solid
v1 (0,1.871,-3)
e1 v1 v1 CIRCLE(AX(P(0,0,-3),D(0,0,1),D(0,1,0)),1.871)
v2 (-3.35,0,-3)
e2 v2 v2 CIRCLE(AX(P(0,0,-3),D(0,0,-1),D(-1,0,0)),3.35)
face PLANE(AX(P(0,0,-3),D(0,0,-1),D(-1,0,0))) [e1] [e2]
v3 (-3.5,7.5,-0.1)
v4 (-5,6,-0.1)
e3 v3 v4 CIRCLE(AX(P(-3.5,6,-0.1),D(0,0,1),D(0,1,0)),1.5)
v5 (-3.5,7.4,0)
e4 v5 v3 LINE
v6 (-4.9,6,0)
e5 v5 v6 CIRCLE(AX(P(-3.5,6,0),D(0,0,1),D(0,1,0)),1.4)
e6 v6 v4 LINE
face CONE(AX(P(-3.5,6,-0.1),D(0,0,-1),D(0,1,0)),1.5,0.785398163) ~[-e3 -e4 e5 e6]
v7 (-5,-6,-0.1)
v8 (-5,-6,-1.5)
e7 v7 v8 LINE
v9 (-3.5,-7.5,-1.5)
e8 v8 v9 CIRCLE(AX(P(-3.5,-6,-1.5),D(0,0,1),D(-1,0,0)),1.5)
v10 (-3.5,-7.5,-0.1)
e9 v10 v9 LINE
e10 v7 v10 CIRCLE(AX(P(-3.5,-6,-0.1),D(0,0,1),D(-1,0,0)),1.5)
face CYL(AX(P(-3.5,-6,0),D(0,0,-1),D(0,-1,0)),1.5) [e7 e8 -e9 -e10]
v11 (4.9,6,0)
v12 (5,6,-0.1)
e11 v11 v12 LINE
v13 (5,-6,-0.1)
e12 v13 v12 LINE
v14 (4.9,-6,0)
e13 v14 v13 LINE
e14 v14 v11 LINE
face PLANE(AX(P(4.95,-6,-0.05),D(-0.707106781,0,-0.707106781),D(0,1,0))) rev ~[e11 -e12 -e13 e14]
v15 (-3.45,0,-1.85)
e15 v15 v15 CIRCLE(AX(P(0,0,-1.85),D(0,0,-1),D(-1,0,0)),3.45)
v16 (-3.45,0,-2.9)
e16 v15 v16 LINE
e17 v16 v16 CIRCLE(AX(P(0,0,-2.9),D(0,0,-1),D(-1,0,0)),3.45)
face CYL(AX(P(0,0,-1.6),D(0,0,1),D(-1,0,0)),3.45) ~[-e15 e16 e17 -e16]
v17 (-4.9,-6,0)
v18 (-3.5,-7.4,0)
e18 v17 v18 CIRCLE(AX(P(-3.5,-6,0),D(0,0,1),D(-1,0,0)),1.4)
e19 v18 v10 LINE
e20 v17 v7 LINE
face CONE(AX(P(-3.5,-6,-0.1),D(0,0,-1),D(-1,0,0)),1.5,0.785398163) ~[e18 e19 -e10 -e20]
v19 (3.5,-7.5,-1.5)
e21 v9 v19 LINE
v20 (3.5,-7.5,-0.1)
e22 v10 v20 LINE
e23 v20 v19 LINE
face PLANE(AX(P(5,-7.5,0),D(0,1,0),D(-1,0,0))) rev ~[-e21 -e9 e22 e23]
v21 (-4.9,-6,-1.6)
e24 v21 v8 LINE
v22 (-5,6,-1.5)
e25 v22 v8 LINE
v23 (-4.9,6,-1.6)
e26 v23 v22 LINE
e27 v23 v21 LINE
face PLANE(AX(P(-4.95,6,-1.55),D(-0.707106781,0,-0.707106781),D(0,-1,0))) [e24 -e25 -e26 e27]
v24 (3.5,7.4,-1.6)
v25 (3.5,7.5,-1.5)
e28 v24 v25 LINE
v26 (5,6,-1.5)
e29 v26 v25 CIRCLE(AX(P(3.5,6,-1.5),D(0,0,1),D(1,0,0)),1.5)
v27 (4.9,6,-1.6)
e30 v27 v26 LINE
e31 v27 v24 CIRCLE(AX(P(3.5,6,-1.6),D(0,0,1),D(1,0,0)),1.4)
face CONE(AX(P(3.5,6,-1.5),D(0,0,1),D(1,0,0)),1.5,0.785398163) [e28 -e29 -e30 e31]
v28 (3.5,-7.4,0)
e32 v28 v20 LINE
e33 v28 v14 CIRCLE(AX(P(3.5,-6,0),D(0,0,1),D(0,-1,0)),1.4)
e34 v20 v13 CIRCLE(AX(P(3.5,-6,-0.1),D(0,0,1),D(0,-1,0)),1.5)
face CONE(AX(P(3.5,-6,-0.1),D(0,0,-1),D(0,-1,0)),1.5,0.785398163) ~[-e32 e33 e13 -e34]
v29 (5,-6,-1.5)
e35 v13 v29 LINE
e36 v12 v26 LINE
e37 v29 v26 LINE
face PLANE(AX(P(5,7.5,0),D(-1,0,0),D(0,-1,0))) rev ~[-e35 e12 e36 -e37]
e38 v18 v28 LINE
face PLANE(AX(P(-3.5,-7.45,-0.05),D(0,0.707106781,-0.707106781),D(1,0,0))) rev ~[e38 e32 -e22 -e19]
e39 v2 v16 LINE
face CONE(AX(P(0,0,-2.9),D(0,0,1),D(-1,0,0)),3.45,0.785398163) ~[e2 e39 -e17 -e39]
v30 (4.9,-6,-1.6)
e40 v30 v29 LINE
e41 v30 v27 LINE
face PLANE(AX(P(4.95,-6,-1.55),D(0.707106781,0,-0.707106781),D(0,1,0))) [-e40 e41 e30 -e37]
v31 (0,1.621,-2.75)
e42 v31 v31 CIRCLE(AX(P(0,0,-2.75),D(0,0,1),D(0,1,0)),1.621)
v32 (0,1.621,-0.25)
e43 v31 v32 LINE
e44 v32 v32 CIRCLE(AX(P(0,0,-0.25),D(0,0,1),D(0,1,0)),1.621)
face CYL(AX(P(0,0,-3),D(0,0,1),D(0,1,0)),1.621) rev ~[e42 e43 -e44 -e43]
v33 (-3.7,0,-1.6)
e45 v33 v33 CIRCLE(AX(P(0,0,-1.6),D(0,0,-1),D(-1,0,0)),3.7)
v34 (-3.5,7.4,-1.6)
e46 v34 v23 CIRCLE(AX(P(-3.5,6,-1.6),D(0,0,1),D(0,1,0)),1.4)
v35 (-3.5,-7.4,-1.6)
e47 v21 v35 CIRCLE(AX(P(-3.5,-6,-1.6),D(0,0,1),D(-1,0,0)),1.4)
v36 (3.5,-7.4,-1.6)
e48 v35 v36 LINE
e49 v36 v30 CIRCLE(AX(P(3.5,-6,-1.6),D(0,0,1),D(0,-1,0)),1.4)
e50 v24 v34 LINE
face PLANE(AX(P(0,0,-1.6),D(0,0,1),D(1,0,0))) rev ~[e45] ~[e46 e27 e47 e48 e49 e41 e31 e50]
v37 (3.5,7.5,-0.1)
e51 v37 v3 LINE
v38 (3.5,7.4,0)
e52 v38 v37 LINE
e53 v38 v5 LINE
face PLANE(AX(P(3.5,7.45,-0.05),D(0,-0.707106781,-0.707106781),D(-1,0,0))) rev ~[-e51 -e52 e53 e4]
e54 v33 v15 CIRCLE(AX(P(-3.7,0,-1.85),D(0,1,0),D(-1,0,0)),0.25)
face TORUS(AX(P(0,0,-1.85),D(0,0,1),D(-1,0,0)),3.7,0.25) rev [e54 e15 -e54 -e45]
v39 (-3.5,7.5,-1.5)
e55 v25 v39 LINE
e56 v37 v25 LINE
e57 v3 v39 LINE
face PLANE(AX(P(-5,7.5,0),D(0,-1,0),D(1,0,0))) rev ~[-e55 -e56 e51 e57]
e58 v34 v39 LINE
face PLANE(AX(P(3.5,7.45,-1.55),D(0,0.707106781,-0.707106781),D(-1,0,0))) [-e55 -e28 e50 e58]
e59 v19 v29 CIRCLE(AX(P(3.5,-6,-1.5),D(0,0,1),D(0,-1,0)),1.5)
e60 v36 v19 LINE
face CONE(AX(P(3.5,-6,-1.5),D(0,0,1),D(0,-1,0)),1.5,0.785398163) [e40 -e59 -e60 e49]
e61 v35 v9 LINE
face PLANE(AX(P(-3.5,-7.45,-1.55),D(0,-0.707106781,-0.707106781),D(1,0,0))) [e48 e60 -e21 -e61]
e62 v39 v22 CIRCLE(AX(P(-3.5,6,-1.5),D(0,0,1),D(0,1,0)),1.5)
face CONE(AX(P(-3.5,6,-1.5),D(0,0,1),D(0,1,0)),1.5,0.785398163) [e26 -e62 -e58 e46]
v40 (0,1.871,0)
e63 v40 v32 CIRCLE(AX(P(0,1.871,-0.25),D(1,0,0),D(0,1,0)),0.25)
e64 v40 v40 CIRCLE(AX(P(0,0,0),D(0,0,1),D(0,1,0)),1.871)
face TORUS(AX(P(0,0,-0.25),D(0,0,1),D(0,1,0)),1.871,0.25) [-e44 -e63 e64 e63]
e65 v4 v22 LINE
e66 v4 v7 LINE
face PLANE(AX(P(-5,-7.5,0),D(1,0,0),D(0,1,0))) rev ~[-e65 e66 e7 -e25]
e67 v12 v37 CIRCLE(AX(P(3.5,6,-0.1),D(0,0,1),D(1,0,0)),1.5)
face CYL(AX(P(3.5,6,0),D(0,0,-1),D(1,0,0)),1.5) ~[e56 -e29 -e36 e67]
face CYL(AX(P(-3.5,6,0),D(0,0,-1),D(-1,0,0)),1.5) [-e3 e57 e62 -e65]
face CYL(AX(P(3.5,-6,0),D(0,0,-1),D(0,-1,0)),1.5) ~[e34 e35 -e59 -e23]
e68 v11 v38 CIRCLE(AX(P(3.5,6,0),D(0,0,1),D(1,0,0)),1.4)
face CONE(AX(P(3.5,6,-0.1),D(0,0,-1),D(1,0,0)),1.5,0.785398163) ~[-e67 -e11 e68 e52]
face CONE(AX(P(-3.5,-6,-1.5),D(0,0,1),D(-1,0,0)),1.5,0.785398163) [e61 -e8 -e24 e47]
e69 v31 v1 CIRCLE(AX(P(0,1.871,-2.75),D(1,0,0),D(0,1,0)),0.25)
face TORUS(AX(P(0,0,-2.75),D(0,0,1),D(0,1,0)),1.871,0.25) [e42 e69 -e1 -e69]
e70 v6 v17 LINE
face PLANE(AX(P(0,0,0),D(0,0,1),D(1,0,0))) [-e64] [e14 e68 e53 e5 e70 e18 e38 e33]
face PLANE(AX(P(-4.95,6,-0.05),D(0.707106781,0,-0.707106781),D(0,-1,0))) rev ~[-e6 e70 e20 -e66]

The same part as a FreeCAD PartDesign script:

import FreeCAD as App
import Part
import Sketcher

V = App.Vector


def edges_at(feature, points):
    """Names of the edges that pass closest to the given points."""
    edges = feature.Shape.Edges
    near = lambda p: min(range(len(edges)), key=lambda i: edges[i].distToShape(Part.Vertex(*p))[0])
    return sorted({f"Edge{near(p) + 1}" for p in points})

doc = App.newDocument("Part")
params = doc.addObject("Spreadsheet::Sheet", "Params")
for row, (alias, value) in enumerate([
    ("sketch1_width", "10 mm"),
    ("sketch1_height", "15 mm"),
    ("pad1_length", "1.6 mm"),
    ("sketch2_diameter", "6.9 mm"),
    ("pad2_length", "1.4 mm"),
    ("fillet_radius", "0.25 mm"),
    ("fillet2_radius", "1.5 mm"),
    ("hole_diameter", "3.242 mm"),
    ("fillet3_radius", "0.25 mm"),
    ("chamfer_size", "0.1 mm"),
    ("chamfer2_size", "0.1 mm"),
], start=1):
    params.set(f"A{row}", alias)
    params.set(f"B{row}", "=" + value)
    params.setAlias(f"B{row}", alias)

body = doc.addObject("PartDesign::Body", "Body")

sketch1 = body.newObject("Sketcher::SketchObject", "Sketch")
sketch1.AttachmentSupport = (doc.getObject("XY_Plane"), [""])
sketch1.MapMode = "FlatFace"
sketch1.addGeometry([
    Part.LineSegment(V(-5, -7.5, 0), V(5, -7.5, 0)),
    Part.LineSegment(V(5, -7.5, 0), V(5, 7.5, 0)),
    Part.LineSegment(V(5, 7.5, 0), V(-5, 7.5, 0)),
    Part.LineSegment(V(-5, 7.5, 0), V(-5, -7.5, 0)),
], False)
sketch1.addConstraint([
    Sketcher.Constraint("Coincident", 0, 2, 1, 1),
    Sketcher.Constraint("Coincident", 1, 2, 2, 1),
    Sketcher.Constraint("Coincident", 2, 2, 3, 1),
    Sketcher.Constraint("Coincident", 3, 2, 0, 1),
    Sketcher.Constraint("Horizontal", 0),
    Sketcher.Constraint("Vertical", 1),
    Sketcher.Constraint("Horizontal", 2),
    Sketcher.Constraint("Vertical", 3),
    Sketcher.Constraint("Symmetric", 0, 2, 2, 2, -1, 1),
    Sketcher.Constraint("DistanceX", 0, 1, 0, 2, 10.0),
    Sketcher.Constraint("DistanceY", 1, 1, 1, 2, 15.0),
])
sketch1.setExpression("Constraints[9]", "Params.sketch1_width")
sketch1.setExpression("Constraints[10]", "Params.sketch1_height")
pad1 = body.newObject("PartDesign::Pad", "Pad")
pad1.Profile = sketch1
pad1.setExpression("Length", "Params.pad1_length")
pad1.Reversed = True

sketch2 = body.newObject("Sketcher::SketchObject", "Sketch001")
sketch2.AttachmentSupport = (doc.getObject("XY_Plane"), [""])
sketch2.MapMode = "FlatFace"
sketch2.AttachmentOffset = App.Placement(V(0, 0, -1.6), App.Rotation())
sketch2.addGeometry(Part.Circle(V(0, 0, 0), V(0, 0, 1), 3.45), False)
sketch2.addConstraint([
    Sketcher.Constraint("Coincident", 0, 3, -1, 1),
    Sketcher.Constraint("Diameter", 0, 6.9),
])
sketch2.setExpression("Constraints[1]", "Params.sketch2_diameter")
pad2 = body.newObject("PartDesign::Pad", "Pad001")
pad2.Profile = sketch2
pad2.setExpression("Length", "Params.pad2_length")
pad2.Reversed = True
doc.recompute()

fillet = body.newObject("PartDesign::Fillet", "Fillet")
fillet.Base = (pad2, edges_at(pad2, [(3.45, 0, -1.6)]))
fillet.setExpression("Radius", "Params.fillet_radius")
doc.recompute()

fillet2 = body.newObject("PartDesign::Fillet", "Fillet001")
fillet2.Base = (fillet, edges_at(fillet, [
    (5, 7.5, -0.8),
    (-5, 7.5, -0.8),
    (-5, -7.5, -0.8),
    (5, -7.5, -0.8),
]))
fillet2.setExpression("Radius", "Params.fillet2_radius")

sketch3 = body.newObject("Sketcher::SketchObject", "Sketch002")
sketch3.AttachmentSupport = (doc.getObject("XY_Plane"), [""])
sketch3.MapMode = "FlatFace"
sketch3.AttachmentOffset = App.Placement(V(0, 0, -3), App.Rotation())
sketch3.addGeometry(Part.Circle(V(0, 0, 0), V(0, 0, 1), 1.621), False)
sketch3.addConstraint([
    Sketcher.Constraint("Coincident", 0, 3, -1, 1),
    Sketcher.Constraint("Diameter", 0, 3.242),
])
doc.recompute()
hole = body.newObject("PartDesign::Hole", "Hole")
hole.Profile = sketch3
hole.ThreadType = "None"
hole.setExpression("Diameter", "Params.hole_diameter")
hole.DepthType = "ThroughAll"
hole.Reversed = True
doc.recompute()

fillet3 = body.newObject("PartDesign::Fillet", "Fillet002")
fillet3.Base = (hole, edges_at(hole, [(0, -1.621, 0), (0, -1.621, -3)]))
fillet3.setExpression("Radius", "Params.fillet3_radius")
doc.recompute()

chamfer = body.newObject("PartDesign::Chamfer", "Chamfer")
chamfer.Base = (fillet3, edges_at(fillet3, [(3.45, 0, -3)]))
chamfer.setExpression("Size", "Params.chamfer_size")
doc.recompute()

chamfer2 = body.newObject("PartDesign::Chamfer", "Chamfer001")
chamfer2.Base = (chamfer, edges_at(chamfer, [
    (4.561, 7.061, 0),
    (5, 0, 0),
    (4.561, -7.061, 0),
    (0, -7.5, 0),
    (-4.561, -7.061, 0),
    (-5, 0, 0),
    (-4.561, 7.061, 0),
    (0, 7.5, 0),
    (4.561, 7.061, -1.6),
    (0, 7.5, -1.6),
    (-4.561, 7.061, -1.6),
    (-5, 0, -1.6),
    (-4.561, -7.061, -1.6),
    (0, -7.5, -1.6),
    (4.561, -7.061, -1.6),
    (5, 0, -1.6),
]))
chamfer2.setExpression("Size", "Params.chamfer2_size")

doc.recompute()
